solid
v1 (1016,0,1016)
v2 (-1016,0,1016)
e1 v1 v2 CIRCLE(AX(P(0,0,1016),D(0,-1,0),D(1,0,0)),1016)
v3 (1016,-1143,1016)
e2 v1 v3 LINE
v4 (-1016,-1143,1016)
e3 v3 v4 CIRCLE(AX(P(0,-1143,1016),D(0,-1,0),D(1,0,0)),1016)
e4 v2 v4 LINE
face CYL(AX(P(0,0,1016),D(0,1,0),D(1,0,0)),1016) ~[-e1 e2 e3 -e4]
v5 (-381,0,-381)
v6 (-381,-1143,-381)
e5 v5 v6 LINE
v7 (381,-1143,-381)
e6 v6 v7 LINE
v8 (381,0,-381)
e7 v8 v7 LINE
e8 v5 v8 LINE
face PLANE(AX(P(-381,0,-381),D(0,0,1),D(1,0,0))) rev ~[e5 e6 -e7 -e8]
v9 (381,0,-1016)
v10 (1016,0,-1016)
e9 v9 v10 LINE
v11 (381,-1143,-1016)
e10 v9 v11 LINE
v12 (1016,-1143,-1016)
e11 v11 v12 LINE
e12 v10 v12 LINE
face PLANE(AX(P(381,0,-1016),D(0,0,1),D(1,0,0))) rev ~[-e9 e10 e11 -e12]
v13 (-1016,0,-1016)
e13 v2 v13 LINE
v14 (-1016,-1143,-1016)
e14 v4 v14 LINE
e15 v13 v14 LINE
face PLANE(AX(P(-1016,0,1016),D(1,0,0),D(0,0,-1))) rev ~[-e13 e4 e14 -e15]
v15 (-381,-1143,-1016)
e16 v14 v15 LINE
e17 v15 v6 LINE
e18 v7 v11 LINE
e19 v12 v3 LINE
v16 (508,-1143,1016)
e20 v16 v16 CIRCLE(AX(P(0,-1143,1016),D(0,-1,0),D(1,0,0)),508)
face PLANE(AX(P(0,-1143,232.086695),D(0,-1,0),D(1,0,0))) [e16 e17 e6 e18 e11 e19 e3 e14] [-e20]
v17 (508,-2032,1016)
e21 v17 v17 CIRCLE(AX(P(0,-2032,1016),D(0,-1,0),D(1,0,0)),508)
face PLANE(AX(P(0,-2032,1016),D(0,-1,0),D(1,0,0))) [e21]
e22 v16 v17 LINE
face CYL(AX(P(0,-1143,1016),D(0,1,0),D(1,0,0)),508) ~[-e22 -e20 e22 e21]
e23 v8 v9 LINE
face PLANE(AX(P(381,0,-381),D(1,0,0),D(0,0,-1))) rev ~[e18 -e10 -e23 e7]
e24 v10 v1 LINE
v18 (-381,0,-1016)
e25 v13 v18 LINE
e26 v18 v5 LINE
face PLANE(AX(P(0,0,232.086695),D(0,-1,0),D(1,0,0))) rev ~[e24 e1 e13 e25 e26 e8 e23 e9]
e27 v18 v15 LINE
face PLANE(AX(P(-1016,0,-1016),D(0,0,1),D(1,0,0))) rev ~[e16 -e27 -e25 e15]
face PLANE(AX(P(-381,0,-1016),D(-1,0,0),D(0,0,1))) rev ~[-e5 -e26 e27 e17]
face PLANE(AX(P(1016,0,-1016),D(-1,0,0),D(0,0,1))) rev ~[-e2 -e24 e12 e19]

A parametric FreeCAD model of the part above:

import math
import FreeCAD as App
import Part
import Sketcher
from FreeCAD import Vector
Q = App.Units.Quantity

doc = App.newDocument("Part")
body = doc.addObject("PartDesign::Body", "Body")

sketch1 = body.newObject("Sketcher::SketchObject", "Sketch")
sketch1.AttachmentSupport = (doc.getObject("XZ_Plane"), [""])
sketch1.MapMode = "FlatFace"
sketch1.addGeometry(Part.LineSegment(Vector(-1016, 1016, 0), Vector(-1016, -1016, 0)), False)
sketch1.addGeometry(Part.LineSegment(Vector(-1016, -1016, 0), Vector(-381, -1016, 0)), False)
sketch1.addGeometry(Part.LineSegment(Vector(-381, -1016, 0), Vector(-381, -381, 0)), False)
sketch1.addGeometry(Part.LineSegment(Vector(-381, -381, 0), Vector(381, -381, 0)), False)
sketch1.addGeometry(Part.LineSegment(Vector(381, -381, 0), Vector(381, -1016, 0)), False)
sketch1.addGeometry(Part.LineSegment(Vector(381, -1016, 0), Vector(1016, -1016, 0)), False)
sketch1.addGeometry(Part.LineSegment(Vector(1016, -1016, 0), Vector(1016, 1016, 0)), False)
sketch1.addGeometry(Part.ArcOfCircle(Part.Circle(Vector(0, 1016, 0), Vector(0, 0, 1), 1016), math.radians(0), math.radians(180)), False)
sketch1.addConstraint(Sketcher.Constraint("Coincident", 0, 2, 1, 1))
sketch1.addConstraint(Sketcher.Constraint("Coincident", 1, 2, 2, 1))
sketch1.addConstraint(Sketcher.Constraint("Coincident", 2, 2, 3, 1))
sketch1.addConstraint(Sketcher.Constraint("Coincident", 3, 2, 4, 1))
sketch1.addConstraint(Sketcher.Constraint("Coincident", 4, 2, 5, 1))
sketch1.addConstraint(Sketcher.Constraint("Coincident", 5, 2, 6, 1))
sketch1.addConstraint(Sketcher.Constraint("Coincident", 6, 2, 7, 1))
sketch1.addConstraint(Sketcher.Constraint("Coincident", 7, 2, 0, 1))
sketch1.addConstraint(Sketcher.Constraint("Vertical", 0))
sketch1.addConstraint(Sketcher.Constraint("Horizontal", 1))
sketch1.addConstraint(Sketcher.Constraint("Vertical", 2))
sketch1.addConstraint(Sketcher.Constraint("Horizontal", 3))
sketch1.addConstraint(Sketcher.Constraint("Vertical", 4))
sketch1.addConstraint(Sketcher.Constraint("Horizontal", 5))
sketch1.addConstraint(Sketcher.Constraint("Vertical", 6))
sketch1.addConstraint(Sketcher.Constraint("Symmetric", 0, 2, 6, 2, -1, 1))
sketch1.addConstraint(Sketcher.Constraint("Symmetric", 1, 2, 4, 2, -2))
sketch1.addConstraint(Sketcher.Constraint("Horizontal", 7, 3, 6, 2))
sketch1.addConstraint(Sketcher.Constraint("Equal", 5, 2))
sketch1.addConstraint(Sketcher.Constraint("Equal", 0, 6))
sketch1.addConstraint(Sketcher.Constraint("Radius", 7, Q("40 in")))
sketch1.addConstraint(Sketcher.Constraint("DistanceX", 1, 1, 1, 2, Q("25 in")))
sketch1.addConstraint(Sketcher.Constraint("DistanceY", 0, 2, 0, 1, Q("80 in")))
pad1 = body.newObject("PartDesign::Pad", "Pad")
pad1.Profile = sketch1
pad1.Length = Q("45 in")

sketch2 = body.newObject("Sketcher::SketchObject", "Sketch001")
sketch2.AttachmentSupport = (doc.getObject("XZ_Plane"), [""])
sketch2.MapMode = "FlatFace"
sketch2.AttachmentOffset = App.Placement(Vector(0, 0, 45 * 25.4), App.Rotation())
sketch2.addGeometry(Part.Circle(Vector(0, 1016, 0), Vector(0, 0, 1), 508), False)
sketch2.addConstraint(Sketcher.Constraint("PointOnObject", 0, 3, -2))
sketch2.addConstraint(Sketcher.Constraint("Diameter", 0, Q("40 in")))
sketch2.addConstraint(Sketcher.Constraint("DistanceY", -1, 1, 0, 3, Q("40 in")))
pad2 = body.newObject("PartDesign::Pad", "Pad001")
pad2.Profile = sketch2
pad2.Length = Q("35 in")

doc.recompute()
